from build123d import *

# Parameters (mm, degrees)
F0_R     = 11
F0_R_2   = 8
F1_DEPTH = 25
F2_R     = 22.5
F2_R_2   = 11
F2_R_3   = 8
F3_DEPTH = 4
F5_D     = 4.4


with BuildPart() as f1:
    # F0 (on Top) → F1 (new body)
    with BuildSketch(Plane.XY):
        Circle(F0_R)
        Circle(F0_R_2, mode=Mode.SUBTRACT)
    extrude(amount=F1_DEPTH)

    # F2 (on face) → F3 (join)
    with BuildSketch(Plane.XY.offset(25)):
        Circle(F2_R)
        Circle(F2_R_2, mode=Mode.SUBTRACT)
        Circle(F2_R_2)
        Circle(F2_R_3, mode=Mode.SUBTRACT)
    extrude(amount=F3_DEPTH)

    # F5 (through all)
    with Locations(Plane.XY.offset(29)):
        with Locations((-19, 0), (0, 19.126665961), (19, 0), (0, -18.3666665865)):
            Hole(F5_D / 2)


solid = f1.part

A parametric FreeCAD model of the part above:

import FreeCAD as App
import Part
import Sketcher

V = App.Vector

doc = App.newDocument("Part")
body = doc.addObject("PartDesign::Body", "Body")

sketch1 = body.newObject("Sketcher::SketchObject", "Sketch")
sketch1.AttachmentSupport = (doc.getObject("XY_Plane"), [""])
sketch1.MapMode = "FlatFace"
sketch1.addGeometry([
    Part.Circle(V(0, 0, 0), V(0, 0, 1), 11),
    Part.Circle(V(0, 0, 0), V(0, 0, 1), 8),
], False)
sketch1.addConstraint([
    Sketcher.Constraint("Coincident", 0, 3, -1, 1),
    Sketcher.Constraint("Coincident", 1, 3, -1, 1),
    Sketcher.Constraint("Diameter", 0, 22.0),
    Sketcher.Constraint("Diameter", 1, 16.0),
])
pad1 = body.newObject("PartDesign::Pad", "Pad")
pad1.Profile = sketch1
pad1.Length = 25

sketch2 = body.newObject("Sketcher::SketchObject", "Sketch001")
sketch2.AttachmentSupport = (doc.getObject("XY_Plane"), [""])
sketch2.MapMode = "FlatFace"
sketch2.AttachmentOffset = App.Placement(V(0, 0, 25), App.Rotation())
sketch2.addGeometry([
    Part.Circle(V(0, 0, 0), V(0, 0, 1), 22.5),
    Part.Circle(V(0, 0, 0), V(0, 0, 1), 8),
], False)
sketch2.addConstraint([
    Sketcher.Constraint("Coincident", 0, 3, -1, 1),
    Sketcher.Constraint("Coincident", 1, 3, -1, 1),
    Sketcher.Constraint("Diameter", 0, 45.0),
    Sketcher.Constraint("Diameter", 1, 16.0),
])
pad2 = body.newObject("PartDesign::Pad", "Pad001")
pad2.Profile = sketch2
pad2.Length = 4

sketch3 = body.newObject("Sketcher::SketchObject", "Sketch002")
sketch3.AttachmentSupport = (doc.getObject("XY_Plane"), [""])
sketch3.MapMode = "FlatFace"
sketch3.AttachmentOffset = App.Placement(V(0, 0, 29), App.Rotation())
sketch3.addGeometry([
    Part.Circle(V(-19, 0, 0), V(0, 0, 1), 2.2),
    Part.Circle(V(0, 19.126666, 0), V(0, 0, 1), 2.2),
    Part.Circle(V(19, 0, 0), V(0, 0, 1), 2.2),
    Part.Circle(V(0, -18.366667, 0), V(0, 0, 1), 2.2),
], False)
sketch3.addConstraint([
    Sketcher.Constraint("Equal", 0, 1),
    Sketcher.Constraint("Equal", 1, 2),
    Sketcher.Constraint("Equal", 2, 3),
    Sketcher.Constraint("Symmetric", 0, 3, 2, 3, -1, 1),
    Sketcher.Constraint("PointOnObject", 0, 3, -1),
    Sketcher.Constraint("PointOnObject", 1, 3, -2),
    Sketcher.Constraint("PointOnObject", 3, 3, -2),
    Sketcher.Constraint("Diameter", 0, 4.4),
    Sketcher.Constraint("DistanceX", 0, 3, -1, 1, 19.0),
    Sketcher.Constraint("DistanceY", -1, 1, 1, 3, 19.126666),
    Sketcher.Constraint("DistanceY", 3, 3, -1, 1, 18.366667),
])
doc.recompute()
hole = body.newObject("PartDesign::Hole", "Hole")
hole.Profile = sketch3
hole.ThreadType = "None"
hole.Diameter = 4.4
hole.DepthType = "ThroughAll"

doc.recompute()
